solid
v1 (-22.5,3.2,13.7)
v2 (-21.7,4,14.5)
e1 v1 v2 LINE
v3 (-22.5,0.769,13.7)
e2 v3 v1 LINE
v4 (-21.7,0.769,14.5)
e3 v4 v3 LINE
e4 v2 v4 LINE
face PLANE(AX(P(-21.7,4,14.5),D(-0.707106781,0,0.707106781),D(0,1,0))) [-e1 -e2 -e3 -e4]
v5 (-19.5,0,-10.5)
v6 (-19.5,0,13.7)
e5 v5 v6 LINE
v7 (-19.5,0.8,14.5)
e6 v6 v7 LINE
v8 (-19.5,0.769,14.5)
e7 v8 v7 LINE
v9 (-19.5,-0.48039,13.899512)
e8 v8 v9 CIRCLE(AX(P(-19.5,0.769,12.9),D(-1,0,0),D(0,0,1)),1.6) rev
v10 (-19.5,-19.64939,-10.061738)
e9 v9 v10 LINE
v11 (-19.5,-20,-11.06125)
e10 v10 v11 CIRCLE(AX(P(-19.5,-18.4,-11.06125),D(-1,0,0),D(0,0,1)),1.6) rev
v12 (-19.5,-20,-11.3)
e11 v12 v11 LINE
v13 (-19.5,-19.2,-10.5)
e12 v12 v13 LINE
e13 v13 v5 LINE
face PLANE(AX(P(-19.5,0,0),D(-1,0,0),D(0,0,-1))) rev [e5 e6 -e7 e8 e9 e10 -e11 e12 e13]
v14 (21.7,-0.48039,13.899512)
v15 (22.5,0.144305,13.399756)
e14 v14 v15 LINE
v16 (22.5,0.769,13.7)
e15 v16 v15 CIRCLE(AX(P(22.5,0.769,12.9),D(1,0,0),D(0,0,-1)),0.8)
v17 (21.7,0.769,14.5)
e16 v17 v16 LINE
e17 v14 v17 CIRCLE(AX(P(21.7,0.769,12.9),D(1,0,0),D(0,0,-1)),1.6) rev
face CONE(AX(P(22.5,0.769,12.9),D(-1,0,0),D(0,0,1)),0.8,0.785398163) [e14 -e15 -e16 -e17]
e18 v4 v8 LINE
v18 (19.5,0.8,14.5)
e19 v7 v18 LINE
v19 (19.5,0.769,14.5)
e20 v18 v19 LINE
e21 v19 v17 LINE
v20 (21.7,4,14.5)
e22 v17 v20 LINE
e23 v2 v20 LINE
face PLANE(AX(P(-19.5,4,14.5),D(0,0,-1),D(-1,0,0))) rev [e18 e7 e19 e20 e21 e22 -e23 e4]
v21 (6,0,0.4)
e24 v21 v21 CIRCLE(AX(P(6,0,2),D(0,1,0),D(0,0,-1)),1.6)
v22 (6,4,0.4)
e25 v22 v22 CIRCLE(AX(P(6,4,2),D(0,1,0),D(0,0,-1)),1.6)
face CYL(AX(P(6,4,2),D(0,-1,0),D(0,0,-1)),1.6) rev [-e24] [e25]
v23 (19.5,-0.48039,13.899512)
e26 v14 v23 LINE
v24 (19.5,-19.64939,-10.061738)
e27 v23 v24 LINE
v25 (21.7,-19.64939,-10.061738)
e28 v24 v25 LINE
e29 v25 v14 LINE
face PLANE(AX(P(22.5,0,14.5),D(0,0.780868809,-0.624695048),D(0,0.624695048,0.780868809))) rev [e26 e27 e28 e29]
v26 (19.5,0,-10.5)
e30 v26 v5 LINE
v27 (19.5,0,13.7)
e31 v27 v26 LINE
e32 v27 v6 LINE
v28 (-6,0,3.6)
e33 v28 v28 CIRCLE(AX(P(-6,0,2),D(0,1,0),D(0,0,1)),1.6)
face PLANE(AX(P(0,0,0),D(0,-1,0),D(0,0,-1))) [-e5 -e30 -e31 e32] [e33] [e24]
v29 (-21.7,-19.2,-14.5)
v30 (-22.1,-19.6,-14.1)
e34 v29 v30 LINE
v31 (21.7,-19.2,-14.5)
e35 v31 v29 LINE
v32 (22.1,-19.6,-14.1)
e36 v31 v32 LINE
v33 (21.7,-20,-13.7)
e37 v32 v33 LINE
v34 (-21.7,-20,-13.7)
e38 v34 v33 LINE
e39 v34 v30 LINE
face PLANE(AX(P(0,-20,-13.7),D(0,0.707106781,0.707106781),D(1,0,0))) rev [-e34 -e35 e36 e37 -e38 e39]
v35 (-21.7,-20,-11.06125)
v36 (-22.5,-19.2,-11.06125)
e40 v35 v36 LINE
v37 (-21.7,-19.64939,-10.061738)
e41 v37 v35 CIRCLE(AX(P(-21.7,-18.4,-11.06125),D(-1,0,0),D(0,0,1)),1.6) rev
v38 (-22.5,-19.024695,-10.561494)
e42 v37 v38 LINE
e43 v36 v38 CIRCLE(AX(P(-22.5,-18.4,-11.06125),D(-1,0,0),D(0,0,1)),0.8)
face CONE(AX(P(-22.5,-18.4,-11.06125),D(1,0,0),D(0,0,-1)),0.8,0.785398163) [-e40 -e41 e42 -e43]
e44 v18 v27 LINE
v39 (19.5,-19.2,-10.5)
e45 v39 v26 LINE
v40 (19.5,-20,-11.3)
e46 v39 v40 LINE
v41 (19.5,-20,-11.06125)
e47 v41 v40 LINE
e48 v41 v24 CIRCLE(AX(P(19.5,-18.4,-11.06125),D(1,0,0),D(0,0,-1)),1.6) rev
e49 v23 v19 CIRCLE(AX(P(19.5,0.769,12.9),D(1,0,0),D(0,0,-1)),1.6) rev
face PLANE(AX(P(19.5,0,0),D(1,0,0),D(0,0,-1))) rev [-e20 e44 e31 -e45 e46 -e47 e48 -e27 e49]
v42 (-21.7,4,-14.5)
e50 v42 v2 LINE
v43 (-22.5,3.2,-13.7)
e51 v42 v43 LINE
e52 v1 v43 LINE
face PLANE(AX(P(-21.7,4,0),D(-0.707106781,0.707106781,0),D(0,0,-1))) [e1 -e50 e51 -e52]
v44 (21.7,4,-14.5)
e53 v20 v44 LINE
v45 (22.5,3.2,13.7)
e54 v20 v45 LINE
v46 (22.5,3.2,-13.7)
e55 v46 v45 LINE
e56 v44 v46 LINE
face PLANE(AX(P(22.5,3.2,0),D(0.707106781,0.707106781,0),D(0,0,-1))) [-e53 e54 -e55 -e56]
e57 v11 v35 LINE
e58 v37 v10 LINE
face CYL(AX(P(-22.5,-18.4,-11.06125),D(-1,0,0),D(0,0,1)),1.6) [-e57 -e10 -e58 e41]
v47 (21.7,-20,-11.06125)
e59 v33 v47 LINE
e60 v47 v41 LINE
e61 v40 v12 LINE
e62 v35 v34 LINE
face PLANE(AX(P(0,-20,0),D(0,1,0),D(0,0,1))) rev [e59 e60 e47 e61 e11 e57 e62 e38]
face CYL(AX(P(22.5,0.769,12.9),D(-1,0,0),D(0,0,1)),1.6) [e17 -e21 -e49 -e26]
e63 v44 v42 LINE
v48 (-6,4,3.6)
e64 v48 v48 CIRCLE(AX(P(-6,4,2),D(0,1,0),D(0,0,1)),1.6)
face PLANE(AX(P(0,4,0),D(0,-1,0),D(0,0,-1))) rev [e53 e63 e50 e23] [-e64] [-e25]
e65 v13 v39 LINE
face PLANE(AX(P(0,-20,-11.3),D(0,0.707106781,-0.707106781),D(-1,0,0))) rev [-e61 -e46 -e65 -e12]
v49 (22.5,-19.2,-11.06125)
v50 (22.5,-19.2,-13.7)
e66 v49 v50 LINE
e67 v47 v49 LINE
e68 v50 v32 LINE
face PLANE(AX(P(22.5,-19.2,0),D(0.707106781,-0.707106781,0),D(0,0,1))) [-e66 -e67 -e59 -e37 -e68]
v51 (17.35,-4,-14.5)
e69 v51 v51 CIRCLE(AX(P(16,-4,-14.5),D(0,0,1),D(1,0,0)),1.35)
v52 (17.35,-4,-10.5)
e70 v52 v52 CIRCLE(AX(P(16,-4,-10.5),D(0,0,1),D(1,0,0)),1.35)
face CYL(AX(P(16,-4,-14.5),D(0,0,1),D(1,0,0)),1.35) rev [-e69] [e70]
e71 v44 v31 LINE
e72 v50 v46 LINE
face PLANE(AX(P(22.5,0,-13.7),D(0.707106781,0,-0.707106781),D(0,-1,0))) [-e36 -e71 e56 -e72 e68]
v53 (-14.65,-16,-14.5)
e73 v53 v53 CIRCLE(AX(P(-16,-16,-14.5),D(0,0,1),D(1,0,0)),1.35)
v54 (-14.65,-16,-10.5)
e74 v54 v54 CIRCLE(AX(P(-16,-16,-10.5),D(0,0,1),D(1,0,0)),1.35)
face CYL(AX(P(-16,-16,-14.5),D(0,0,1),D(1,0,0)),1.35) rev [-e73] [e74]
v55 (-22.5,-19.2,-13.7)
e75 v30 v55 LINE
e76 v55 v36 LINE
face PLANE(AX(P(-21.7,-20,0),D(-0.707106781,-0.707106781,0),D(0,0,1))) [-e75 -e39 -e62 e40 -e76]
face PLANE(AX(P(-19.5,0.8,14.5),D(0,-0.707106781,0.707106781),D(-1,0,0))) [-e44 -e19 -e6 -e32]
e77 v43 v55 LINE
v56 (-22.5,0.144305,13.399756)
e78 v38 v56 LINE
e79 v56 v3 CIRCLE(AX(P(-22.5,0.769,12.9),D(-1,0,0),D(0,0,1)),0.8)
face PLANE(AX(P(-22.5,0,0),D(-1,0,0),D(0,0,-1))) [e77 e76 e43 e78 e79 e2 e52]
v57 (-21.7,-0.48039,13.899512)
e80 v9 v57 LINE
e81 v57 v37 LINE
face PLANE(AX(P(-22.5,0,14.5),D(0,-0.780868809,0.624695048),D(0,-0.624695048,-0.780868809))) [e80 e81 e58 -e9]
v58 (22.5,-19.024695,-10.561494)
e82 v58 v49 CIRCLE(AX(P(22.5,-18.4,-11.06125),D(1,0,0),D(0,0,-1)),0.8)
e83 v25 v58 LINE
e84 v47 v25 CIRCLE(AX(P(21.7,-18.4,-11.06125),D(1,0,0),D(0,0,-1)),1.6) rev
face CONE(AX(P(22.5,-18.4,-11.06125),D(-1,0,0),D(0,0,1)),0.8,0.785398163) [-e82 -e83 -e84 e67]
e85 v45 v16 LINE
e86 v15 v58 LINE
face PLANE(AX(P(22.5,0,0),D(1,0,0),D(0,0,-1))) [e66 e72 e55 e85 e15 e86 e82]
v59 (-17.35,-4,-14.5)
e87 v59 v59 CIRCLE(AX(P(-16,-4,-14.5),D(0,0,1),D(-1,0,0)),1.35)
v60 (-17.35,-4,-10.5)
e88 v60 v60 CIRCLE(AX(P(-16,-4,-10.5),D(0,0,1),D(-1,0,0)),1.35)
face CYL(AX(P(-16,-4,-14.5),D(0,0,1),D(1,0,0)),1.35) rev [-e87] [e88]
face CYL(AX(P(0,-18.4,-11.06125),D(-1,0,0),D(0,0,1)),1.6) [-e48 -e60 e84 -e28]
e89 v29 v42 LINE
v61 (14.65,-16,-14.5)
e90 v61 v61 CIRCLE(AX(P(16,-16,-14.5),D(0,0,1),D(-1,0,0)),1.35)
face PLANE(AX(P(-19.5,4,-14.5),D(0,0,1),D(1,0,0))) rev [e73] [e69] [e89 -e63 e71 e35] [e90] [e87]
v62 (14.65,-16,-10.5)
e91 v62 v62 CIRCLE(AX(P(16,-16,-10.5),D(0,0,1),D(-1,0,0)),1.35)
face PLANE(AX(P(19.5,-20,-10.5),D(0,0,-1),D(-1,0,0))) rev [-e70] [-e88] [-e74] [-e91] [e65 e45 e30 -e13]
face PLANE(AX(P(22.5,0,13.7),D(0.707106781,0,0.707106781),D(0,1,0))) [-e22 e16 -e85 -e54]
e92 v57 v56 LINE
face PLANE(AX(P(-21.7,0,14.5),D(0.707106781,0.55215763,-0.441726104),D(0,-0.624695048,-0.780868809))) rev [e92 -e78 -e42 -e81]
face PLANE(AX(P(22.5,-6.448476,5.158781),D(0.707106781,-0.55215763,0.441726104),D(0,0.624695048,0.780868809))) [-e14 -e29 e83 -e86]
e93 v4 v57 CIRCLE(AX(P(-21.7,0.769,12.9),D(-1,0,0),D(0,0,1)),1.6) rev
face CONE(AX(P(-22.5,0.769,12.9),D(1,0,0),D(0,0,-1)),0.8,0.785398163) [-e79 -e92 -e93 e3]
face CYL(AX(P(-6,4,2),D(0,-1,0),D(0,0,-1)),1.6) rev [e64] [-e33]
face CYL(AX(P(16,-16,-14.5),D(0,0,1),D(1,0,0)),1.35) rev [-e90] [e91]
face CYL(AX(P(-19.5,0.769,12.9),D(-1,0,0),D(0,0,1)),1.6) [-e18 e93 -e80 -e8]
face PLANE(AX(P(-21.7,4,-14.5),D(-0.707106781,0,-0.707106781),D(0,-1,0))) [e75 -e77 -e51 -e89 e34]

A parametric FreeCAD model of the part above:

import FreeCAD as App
import Part
import Sketcher
Q = App.Units.Quantity


def edges_at(feature, points):
    """Names of the edges that pass closest to the given points."""
    edges = feature.Shape.Edges
    near = lambda p: min(range(len(edges)), key=lambda i: edges[i].distToShape(Part.Vertex(*p))[0])
    return sorted({f"Edge{near(p) + 1}" for p in points})

doc = App.newDocument("Part")
body = doc.addObject("PartDesign::Body", "Body")

sketch1 = body.newObject("Sketcher::SketchObject", "Sketch")
sketch1.AttachmentSupport = (doc.getObject("XZ_Plane"), [""])
sketch1.MapMode = "FlatFace"
sketch1.addGeometry(Part.LineSegment(App.Vector(-19.5, -14.5, 0), App.Vector(-19.5, 14.5, 0)), False)
sketch1.addGeometry(Part.LineSegment(App.Vector(-19.5, 14.5, 0), App.Vector(19.5, 14.5, 0)), False)
sketch1.addGeometry(Part.LineSegment(App.Vector(19.5, 14.5, 0), App.Vector(19.5, -14.5, 0)), False)
sketch1.addGeometry(Part.LineSegment(App.Vector(19.5, -14.5, 0), App.Vector(-19.5, -14.5, 0)), False)
sketch1.addGeometry(Part.Circle(App.Vector(-6, 2, 0), App.Vector(0, 0, 1), 1.6), False)
sketch1.addGeometry(Part.Circle(App.Vector(6, 2, 0), App.Vector(0, 0, 1), 1.6), False)
sketch1.addConstraint(Sketcher.Constraint("Coincident", 0, 2, 1, 1))
sketch1.addConstraint(Sketcher.Constraint("Coincident", 1, 2, 2, 1))
sketch1.addConstraint(Sketcher.Constraint("Coincident", 2, 2, 3, 1))
sketch1.addConstraint(Sketcher.Constraint("Coincident", 3, 2, 0, 1))
sketch1.addConstraint(Sketcher.Constraint("Vertical", 0))
sketch1.addConstraint(Sketcher.Constraint("Horizontal", 1))
sketch1.addConstraint(Sketcher.Constraint("Vertical", 2))
sketch1.addConstraint(Sketcher.Constraint("Horizontal", 3))
sketch1.addConstraint(Sketcher.Constraint("Equal", 4, 5))
sketch1.addConstraint(Sketcher.Constraint("Symmetric", 0, 2, 2, 2, -1, 1))
sketch1.addConstraint(Sketcher.Constraint("Symmetric", 4, 3, 5, 3, -2))
sketch1.addConstraint(Sketcher.Constraint("Diameter", 4, Q("3.2 mm")))
sketch1.addConstraint(Sketcher.Constraint("DistanceX", 1, 1, 1, 2, Q("39 mm")))
sketch1.addConstraint(Sketcher.Constraint("DistanceY", 0, 1, 0, 2, Q("29 mm")))
sketch1.addConstraint(Sketcher.Constraint("DistanceX", 4, 3, -1, 1, Q("6 mm")))
sketch1.addConstraint(Sketcher.Constraint("DistanceY", -1, 1, 4, 3, Q("2 mm")))
pad1 = body.newObject("PartDesign::Pad", "Pad")
pad1.Profile = sketch1
pad1.Length = 4
pad1.Reversed = True

sketch2 = body.newObject("Sketcher::SketchObject", "Sketch001")
sketch2.AttachmentSupport = (doc.getObject("XZ_Plane"), [""])
sketch2.MapMode = "FlatFace"
sketch2.addGeometry(Part.LineSegment(App.Vector(19.5, -14.5, 0), App.Vector(19.5, -10.5, 0)), False)
sketch2.addGeometry(Part.LineSegment(App.Vector(19.5, -10.5, 0), App.Vector(-19.5, -10.5, 0)), False)
sketch2.addGeometry(Part.LineSegment(App.Vector(-19.5, -10.5, 0), App.Vector(-19.5, -14.5, 0)), False)
sketch2.addGeometry(Part.LineSegment(App.Vector(-19.5, -14.5, 0), App.Vector(19.5, -14.5, 0)), False)
sketch2.addConstraint(Sketcher.Constraint("Coincident", 0, 2, 1, 1))
sketch2.addConstraint(Sketcher.Constraint("Coincident", 1, 2, 2, 1))
sketch2.addConstraint(Sketcher.Constraint("Coincident", 2, 2, 3, 1))
sketch2.addConstraint(Sketcher.Constraint("Coincident", 3, 2, 0, 1))
sketch2.addConstraint(Sketcher.Constraint("Vertical", 0))
sketch2.addConstraint(Sketcher.Constraint("Horizontal", 1))
sketch2.addConstraint(Sketcher.Constraint("Vertical", 2))
sketch2.addConstraint(Sketcher.Constraint("Horizontal", 3))
sketch2.addConstraint(Sketcher.Constraint("DistanceX", 1, 2, 1, 1, Q("39 mm")))
sketch2.addConstraint(Sketcher.Constraint("DistanceY", 0, 1, 0, 2, Q("4 mm")))
sketch2.addConstraint(Sketcher.Constraint("DistanceX", -1, 1, 0, 2, Q("19.5 mm")))
sketch2.addConstraint(Sketcher.Constraint("DistanceY", 0, 2, -1, 1, Q("10.5 mm")))
pad2 = body.newObject("PartDesign::Pad", "Pad001")
pad2.Profile = sketch2
pad2.Length = 20

sketch3 = body.newObject("Sketcher::SketchObject", "Sketch002")
sketch3.AttachmentSupport = (doc.getObject("XY_Plane"), [""])
sketch3.MapMode = "FlatFace"
sketch3.AttachmentOffset = App.Placement(App.Vector(0, 0, -10.5), App.Rotation())
sketch3.addGeometry(Part.Circle(App.Vector(16, -4, 0), App.Vector(0, 0, 1), 1.4), False)
sketch3.addGeometry(Part.Circle(App.Vector(16, -16, 0), App.Vector(0, 0, 1), 1.4), False)
sketch3.addGeometry(Part.Circle(App.Vector(-16, -16, 0), App.Vector(0, 0, 1), 1.4), False)
sketch3.addGeometry(Part.Circle(App.Vector(-16, -4, 0), App.Vector(0, 0, 1), 1.4), False)
sketch3.addConstraint(Sketcher.Constraint("Equal", 0, 1))
sketch3.addConstraint(Sketcher.Constraint("Equal", 1, 2))
sketch3.addConstraint(Sketcher.Constraint("Equal", 2, 3))
sketch3.addConstraint(Sketcher.Constraint("Symmetric", 1, 3, 2, 3, -2))
sketch3.addConstraint(Sketcher.Constraint("Symmetric", 0, 3, 3, 3, -2))
sketch3.addConstraint(Sketcher.Constraint("Vertical", 0, 3, 1, 3))
sketch3.addConstraint(Sketcher.Constraint("Diameter", 0, Q("2.7 mm")))
sketch3.addConstraint(Sketcher.Constraint("DistanceX", -1, 1, 0, 3, Q("16 mm")))
sketch3.addConstraint(Sketcher.Constraint("DistanceY", 0, 3, -1, 1, Q("4 mm")))
sketch3.addConstraint(Sketcher.Constraint("DistanceY", 1, 3, -1, 1, Q("16 mm")))
pocket1 = body.newObject("PartDesign::Pocket", "Pocket")
pocket1.Profile = sketch3
pocket1.Length = 4

sketch4 = body.newObject("Sketcher::SketchObject", "Sketch003")
sketch4.AttachmentSupport = (doc.getObject("YZ_Plane"), [""])
sketch4.MapMode = "FlatFace"
sketch4.AttachmentOffset = App.Placement(App.Vector(0, 0, 19.5), App.Rotation())
sketch4.addGeometry(Part.LineSegment(App.Vector(0, 14.5, 0), App.Vector(-20, -10.5, 0)), False)
sketch4.addGeometry(Part.LineSegment(App.Vector(-20, -10.5, 0), App.Vector(-20, -14.5, 0)), False)
sketch4.addGeometry(Part.LineSegment(App.Vector(-20, -14.5, 0), App.Vector(4, -14.5, 0)), False)
sketch4.addGeometry(Part.LineSegment(App.Vector(4, -14.5, 0), App.Vector(4, 14.5, 0)), False)
sketch4.addGeometry(Part.LineSegment(App.Vector(4, 14.5, 0), App.Vector(0, 14.5, 0)), False)
sketch4.addConstraint(Sketcher.Constraint("Coincident", 0, 2, 1, 1))
sketch4.addConstraint(Sketcher.Constraint("Coincident", 1, 2, 2, 1))
sketch4.addConstraint(Sketcher.Constraint("Coincident", 2, 2, 3, 1))
sketch4.addConstraint(Sketcher.Constraint("Coincident", 3, 2, 4, 1))
sketch4.addConstraint(Sketcher.Constraint("Coincident", 4, 2, 0, 1))
sketch4.addConstraint(Sketcher.Constraint("Vertical", 1))
sketch4.addConstraint(Sketcher.Constraint("Horizontal", 2))
sketch4.addConstraint(Sketcher.Constraint("Vertical", 3))
sketch4.addConstraint(Sketcher.Constraint("Horizontal", 4))
sketch4.addConstraint(Sketcher.Constraint("PointOnObject", 4, 2, -2))
sketch4.addConstraint(Sketcher.Constraint("Equal", 4, 1))
sketch4.addConstraint(Sketcher.Constraint("DistanceX", 2, 1, 2, 2, Q("24 mm")))
sketch4.addConstraint(Sketcher.Constraint("DistanceX", 4, 2, 4, 1, Q("4 mm")))
sketch4.addConstraint(Sketcher.Constraint("DistanceY", 3, 1, 3, 2, Q("29 mm")))
sketch4.addConstraint(Sketcher.Constraint("DistanceY", 0, 2, -1, 1, Q("10.5 mm")))
pad3 = body.newObject("PartDesign::Pad", "Pad002")
pad3.Profile = sketch4
pad3.Length = 3
doc.recompute()

mirrored = body.newObject("PartDesign::Mirrored", "Mirrored")
mirrored.Originals = [pad3]
mirrored.MirrorPlane = (doc.getObject("YZ_Plane"), [""])
body.Tip = mirrored
doc.recompute()

chamfer = body.newObject("PartDesign::Chamfer", "Chamfer")
chamfer.Base = (mirrored, edges_at(mirrored, [
    (0, -20, -10.5),
    (0, -20, -14.5),
    (0, 0, 14.5),
    (22.5, -8, -14.5),
    (22.5, 4, 0),
    (-22.5, 4, 0),
    (-22.5, -8, -14.5),
]))
chamfer.Size = 0.8
doc.recompute()

fillet = body.newObject("PartDesign::Fillet", "Fillet")
fillet.Base = (chamfer, edges_at(chamfer, [
    (21, 0, 14.5),
    (21, -20, -10.5),
    (-21, 0, 14.5),
    (-21, -20, -10.5),
]))
fillet.Radius = 1.6
doc.recompute()

chamfer2 = body.newObject("PartDesign::Chamfer", "Chamfer001")
chamfer2.Base = (fillet, edges_at(fillet, [
    (22.5, 1.984, 14.5),
    (22.5, -20, -12.381),
    (22.5, 0.076, 14.342),
    (22.5, -19.91, -10.532),
    (22.5, -10.065, 1.919),
    (-22.5, -20, -12.381),
    (-22.5, -19.91, -10.532),
    (-22.5, -10.065, 1.919),
    (-22.5, 0.076, 14.342),
    (-22.5, 1.984, 14.5),
]))
chamfer2.Size = 0.8

doc.recompute()
